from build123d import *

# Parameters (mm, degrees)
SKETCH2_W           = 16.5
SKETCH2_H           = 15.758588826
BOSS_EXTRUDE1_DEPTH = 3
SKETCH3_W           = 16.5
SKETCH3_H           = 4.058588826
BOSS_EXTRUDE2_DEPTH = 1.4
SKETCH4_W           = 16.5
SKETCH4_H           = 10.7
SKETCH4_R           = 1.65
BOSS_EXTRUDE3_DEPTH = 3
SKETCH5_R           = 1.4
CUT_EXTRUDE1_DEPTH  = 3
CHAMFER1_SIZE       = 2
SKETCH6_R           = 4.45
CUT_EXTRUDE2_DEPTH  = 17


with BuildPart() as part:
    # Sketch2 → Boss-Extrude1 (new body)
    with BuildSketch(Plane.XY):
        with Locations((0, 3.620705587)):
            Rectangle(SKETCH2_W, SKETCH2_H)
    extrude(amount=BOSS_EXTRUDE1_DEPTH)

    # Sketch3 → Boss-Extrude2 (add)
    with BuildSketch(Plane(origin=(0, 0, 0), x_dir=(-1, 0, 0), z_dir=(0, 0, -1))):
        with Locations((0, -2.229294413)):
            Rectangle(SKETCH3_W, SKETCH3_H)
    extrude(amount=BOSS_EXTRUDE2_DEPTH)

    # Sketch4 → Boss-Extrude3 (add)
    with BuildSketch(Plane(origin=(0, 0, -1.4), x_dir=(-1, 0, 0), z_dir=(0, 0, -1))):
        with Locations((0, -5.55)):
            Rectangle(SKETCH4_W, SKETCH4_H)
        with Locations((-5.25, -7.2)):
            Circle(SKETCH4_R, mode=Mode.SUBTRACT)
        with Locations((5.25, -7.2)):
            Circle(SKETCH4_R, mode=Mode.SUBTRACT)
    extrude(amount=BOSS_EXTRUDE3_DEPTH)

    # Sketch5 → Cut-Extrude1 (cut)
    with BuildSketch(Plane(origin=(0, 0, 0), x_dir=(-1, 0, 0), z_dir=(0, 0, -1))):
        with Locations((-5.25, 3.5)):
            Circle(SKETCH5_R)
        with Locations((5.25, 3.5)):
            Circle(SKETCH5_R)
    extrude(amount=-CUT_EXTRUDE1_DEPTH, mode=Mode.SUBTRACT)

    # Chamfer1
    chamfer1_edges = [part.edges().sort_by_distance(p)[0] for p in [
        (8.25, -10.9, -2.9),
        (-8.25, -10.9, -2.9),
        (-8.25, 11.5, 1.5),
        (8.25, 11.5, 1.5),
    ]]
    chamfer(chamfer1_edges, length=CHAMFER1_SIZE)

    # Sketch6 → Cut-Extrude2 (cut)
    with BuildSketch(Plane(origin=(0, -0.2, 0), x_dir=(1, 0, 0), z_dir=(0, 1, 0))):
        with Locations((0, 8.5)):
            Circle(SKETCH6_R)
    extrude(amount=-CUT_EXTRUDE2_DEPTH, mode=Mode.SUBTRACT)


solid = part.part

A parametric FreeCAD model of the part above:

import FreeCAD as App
import Part
import Sketcher

V = App.Vector
Q = App.Units.Quantity


def edges_at(feature, points):
    """Names of the edges that pass closest to the given points."""
    edges = feature.Shape.Edges
    near = lambda p: min(range(len(edges)), key=lambda i: edges[i].distToShape(Part.Vertex(*p))[0])
    return sorted({f"Edge{near(p) + 1}" for p in points})


def add_polygon(sketch, points):
    """Adds a closed chain of lines whose ends are joined by coincident constraints."""
    first, n = sketch.GeometryCount, len(points)
    for a, b in zip(points, points[1:] + points[:1]):
        sketch.addGeometry(Part.LineSegment(App.Vector(*a, 0), App.Vector(*b, 0)), False)
    for i in range(n):
        sketch.addConstraint(Sketcher.Constraint("Coincident", first + i, 2, first + (i + 1) % n, 1))

doc = App.newDocument("Part")
body = doc.addObject("PartDesign::Body", "Body")

sketch1 = body.newObject("Sketcher::SketchObject", "Sketch")
sketch1.AttachmentSupport = (doc.getObject("XY_Plane"), [""])
sketch1.MapMode = "FlatFace"
add_polygon(sketch1, [(-8, 12), (-8, -4), (8, -4), (8, 12)])
sketch1.addConstraint([
    Sketcher.Constraint("Vertical", 0),
    Sketcher.Constraint("Horizontal", 1),
    Sketcher.Constraint("Vertical", 2),
    Sketcher.Constraint("Horizontal", 3),
    Sketcher.Constraint("DistanceX", 1, 1, 1, 2, Q("16.5 mm")),
    Sketcher.Constraint("DistanceY", -1, 1, 2, 2, Q("11.5 mm")),
    Sketcher.Constraint("DistanceX", 0, 2, -1, 1, Q("8.25 mm")),
    Sketcher.Constraint("DistanceY", 0, 2, 0, 1, Q("15.758589 mm")),
])
pad1 = body.newObject("PartDesign::Pad", "Pad")
pad1.Profile = sketch1
pad1.Length = 3

sketch2 = body.newObject("Sketcher::SketchObject", "Sketch001")
sketch2.AttachmentSupport = (doc.getObject("XY_Plane"), [""])
sketch2.MapMode = "FlatFace"
add_polygon(sketch2, [(8.2, -0.2), (8.2, -4.3), (-8.2, -4.3), (-8.2, -0.2)])
sketch2.addConstraint([
    Sketcher.Constraint("Vertical", 0),
    Sketcher.Constraint("Horizontal", 1),
    Sketcher.Constraint("Vertical", 2),
    Sketcher.Constraint("Horizontal", 3),
    Sketcher.Constraint("DistanceX", 1, 2, 1, 1, Q("16.5 mm")),
    Sketcher.Constraint("DistanceY", 2, 2, -1, 1, Q("0.2 mm")),
    Sketcher.Constraint("DistanceX", -1, 1, 0, 2, Q("8.25 mm")),
    Sketcher.Constraint("DistanceY", 0, 2, 0, 1, Q("4.058589 mm")),
])
pad2 = body.newObject("PartDesign::Pad", "Pad001")
pad2.Profile = sketch2
pad2.Length = 1.4
pad2.Reversed = True

sketch3 = body.newObject("Sketcher::SketchObject", "Sketch002")
sketch3.AttachmentSupport = (doc.getObject("XY_Plane"), [""])
sketch3.MapMode = "FlatFace"
sketch3.AttachmentOffset = App.Placement(V(0, 0, -1.4), App.Rotation())
add_polygon(sketch3, [(8.2, -0.2), (8.2, -10.9), (-8.2, -10.9), (-8.2, -0.2)])
sketch3.addGeometry(Part.Circle(V(5.2, -7.2, 0), V(0, 0, 1), 1.6), False)
sketch3.addGeometry(Part.Circle(V(-5.2, -7.2, 0), V(0, 0, 1), 1.6), False)
sketch3.addConstraint([
    Sketcher.Constraint("Vertical", 0),
    Sketcher.Constraint("Horizontal", 1),
    Sketcher.Constraint("Vertical", 2),
    Sketcher.Constraint("Horizontal", 3),
    Sketcher.Constraint("Equal", 4, 5),
    Sketcher.Constraint("Symmetric", 4, 3, 5, 3, -2),
    Sketcher.Constraint("Diameter", 4, Q("3.3 mm")),
    Sketcher.Constraint("DistanceX", 1, 2, 1, 1, Q("16.5 mm")),
    Sketcher.Constraint("DistanceY", 0, 2, 0, 1, Q("10.7 mm")),
    Sketcher.Constraint("DistanceX", 4, 3, 0, 2, Q("3 mm")),
    Sketcher.Constraint("DistanceX", 1, 2, 5, 3, Q("3 mm")),
    Sketcher.Constraint("DistanceY", 5, 3, 2, 2, Q("7 mm")),
    Sketcher.Constraint("DistanceY", 4, 3, -1, 1, Q("7.2 mm")),
])
pad3 = body.newObject("PartDesign::Pad", "Pad002")
pad3.Profile = sketch3
pad3.Length = 3
pad3.Reversed = True

sketch4 = body.newObject("Sketcher::SketchObject", "Sketch003")
sketch4.AttachmentSupport = (doc.getObject("XY_Plane"), [""])
sketch4.MapMode = "FlatFace"
sketch4.addGeometry([
    Part.Circle(V(5.2, 3.5, 0), V(0, 0, 1), 1.4),
    Part.Circle(V(-5.2, 3.5, 0), V(0, 0, 1), 1.4),
], False)
sketch4.addConstraint([
    Sketcher.Constraint("Equal", 0, 1),
    Sketcher.Constraint("Symmetric", 0, 3, 1, 3, -2),
    Sketcher.Constraint("Diameter", 0, Q("2.8 mm")),
    Sketcher.Constraint("DistanceY", -1, 1, 0, 3, Q("3.5 mm")),
    Sketcher.Constraint("DistanceX", 1, 3, 0, 3, Q("10.5 mm")),
])
pocket1 = body.newObject("PartDesign::Pocket", "Pocket")
pocket1.Profile = sketch4
pocket1.Length = 3
pocket1.Reversed = True
doc.recompute()

chamfer = body.newObject("PartDesign::Chamfer", "Chamfer")
chamfer.Base = (pocket1, edges_at(pocket1, [
    (8.25, -10.9, -2.9),
    (-8.25, -10.9, -2.9),
    (-8.25, 11.5, 1.5),
    (8.25, 11.5, 1.5),
]))
chamfer.Size = 2

sketch5 = body.newObject("Sketcher::SketchObject", "Sketch004")
sketch5.AttachmentSupport = (doc.getObject("XZ_Plane"), [""])
sketch5.MapMode = "FlatFace"
sketch5.AttachmentOffset = App.Placement(V(0, 0, 0.2), App.Rotation())
sketch5.addGeometry(Part.Circle(V(0, -8.5, 0), V(0, 0, 1), 4.5), False)
sketch5.addConstraint([
    Sketcher.Constraint("PointOnObject", 0, 3, -2),
    Sketcher.Constraint("Diameter", 0, Q("8.9 mm")),
    Sketcher.Constraint("DistanceY", 0, 3, -1, 1, Q("8.5 mm")),
])
pocket2 = body.newObject("PartDesign::Pocket", "Pocket001")
pocket2.Profile = sketch5
pocket2.Length = 17
pocket2.Reversed = True

doc.recompute()
